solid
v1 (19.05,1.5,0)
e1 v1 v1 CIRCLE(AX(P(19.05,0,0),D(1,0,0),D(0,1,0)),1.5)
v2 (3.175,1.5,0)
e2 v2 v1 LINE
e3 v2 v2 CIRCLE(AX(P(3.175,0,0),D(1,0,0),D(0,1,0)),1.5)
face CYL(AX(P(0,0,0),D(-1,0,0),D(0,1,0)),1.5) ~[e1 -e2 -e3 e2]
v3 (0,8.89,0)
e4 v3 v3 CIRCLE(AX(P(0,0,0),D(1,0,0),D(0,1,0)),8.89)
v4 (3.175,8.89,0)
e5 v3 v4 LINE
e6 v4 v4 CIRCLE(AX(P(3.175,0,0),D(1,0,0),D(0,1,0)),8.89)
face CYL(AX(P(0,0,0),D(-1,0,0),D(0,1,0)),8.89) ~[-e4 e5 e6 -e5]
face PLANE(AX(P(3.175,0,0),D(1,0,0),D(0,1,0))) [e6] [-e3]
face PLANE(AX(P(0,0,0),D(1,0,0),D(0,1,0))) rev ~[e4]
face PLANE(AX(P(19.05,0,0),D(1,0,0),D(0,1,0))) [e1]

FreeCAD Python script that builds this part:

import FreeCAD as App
import Part
import Sketcher
from FreeCAD import Vector
Q = App.Units.Quantity

doc = App.newDocument("Part")
body = doc.addObject("PartDesign::Body", "Body")

sketch1 = body.newObject("Sketcher::SketchObject", "Sketch")
sketch1.AttachmentSupport = (doc.getObject("YZ_Plane"), [""])
sketch1.MapMode = "FlatFace"
sketch1.addGeometry(Part.Circle(Vector(0, 0, 0), Vector(0, 0, 1), 8.9), False)
sketch1.addGeometry(Part.Circle(Vector(0, 0, 0), Vector(0, 0, 1), 1.5), False)
sketch1.addConstraint(Sketcher.Constraint("Coincident", 0, 3, -1, 1))
sketch1.addConstraint(Sketcher.Constraint("Coincident", 1, 3, -1, 1))
sketch1.addConstraint(Sketcher.Constraint("Diameter", 0, Q("0.7 in")))
sketch1.addConstraint(Sketcher.Constraint("Diameter", 1, Q("0.1181 in")))
pad1 = body.newObject("PartDesign::Pad", "Pad")
pad1.Profile = sketch1
pad1.Length = Q("0.125 in")

sketch2 = body.newObject("Sketcher::SketchObject", "Sketch001")
sketch2.AttachmentSupport = (doc.getObject("YZ_Plane"), [""])
sketch2.MapMode = "FlatFace"
sketch2.addGeometry(Part.Circle(Vector(0, 0, 0), Vector(0, 0, 1), 1.5), False)
sketch2.addConstraint(Sketcher.Constraint("Coincident", 0, 3, -1, 1))
sketch2.addConstraint(Sketcher.Constraint("Diameter", 0, Q("0.1181 in")))
pad2 = body.newObject("PartDesign::Pad", "Pad001")
pad2.Profile = sketch2
pad2.Length = Q("0.75 in")

doc.recompute()
